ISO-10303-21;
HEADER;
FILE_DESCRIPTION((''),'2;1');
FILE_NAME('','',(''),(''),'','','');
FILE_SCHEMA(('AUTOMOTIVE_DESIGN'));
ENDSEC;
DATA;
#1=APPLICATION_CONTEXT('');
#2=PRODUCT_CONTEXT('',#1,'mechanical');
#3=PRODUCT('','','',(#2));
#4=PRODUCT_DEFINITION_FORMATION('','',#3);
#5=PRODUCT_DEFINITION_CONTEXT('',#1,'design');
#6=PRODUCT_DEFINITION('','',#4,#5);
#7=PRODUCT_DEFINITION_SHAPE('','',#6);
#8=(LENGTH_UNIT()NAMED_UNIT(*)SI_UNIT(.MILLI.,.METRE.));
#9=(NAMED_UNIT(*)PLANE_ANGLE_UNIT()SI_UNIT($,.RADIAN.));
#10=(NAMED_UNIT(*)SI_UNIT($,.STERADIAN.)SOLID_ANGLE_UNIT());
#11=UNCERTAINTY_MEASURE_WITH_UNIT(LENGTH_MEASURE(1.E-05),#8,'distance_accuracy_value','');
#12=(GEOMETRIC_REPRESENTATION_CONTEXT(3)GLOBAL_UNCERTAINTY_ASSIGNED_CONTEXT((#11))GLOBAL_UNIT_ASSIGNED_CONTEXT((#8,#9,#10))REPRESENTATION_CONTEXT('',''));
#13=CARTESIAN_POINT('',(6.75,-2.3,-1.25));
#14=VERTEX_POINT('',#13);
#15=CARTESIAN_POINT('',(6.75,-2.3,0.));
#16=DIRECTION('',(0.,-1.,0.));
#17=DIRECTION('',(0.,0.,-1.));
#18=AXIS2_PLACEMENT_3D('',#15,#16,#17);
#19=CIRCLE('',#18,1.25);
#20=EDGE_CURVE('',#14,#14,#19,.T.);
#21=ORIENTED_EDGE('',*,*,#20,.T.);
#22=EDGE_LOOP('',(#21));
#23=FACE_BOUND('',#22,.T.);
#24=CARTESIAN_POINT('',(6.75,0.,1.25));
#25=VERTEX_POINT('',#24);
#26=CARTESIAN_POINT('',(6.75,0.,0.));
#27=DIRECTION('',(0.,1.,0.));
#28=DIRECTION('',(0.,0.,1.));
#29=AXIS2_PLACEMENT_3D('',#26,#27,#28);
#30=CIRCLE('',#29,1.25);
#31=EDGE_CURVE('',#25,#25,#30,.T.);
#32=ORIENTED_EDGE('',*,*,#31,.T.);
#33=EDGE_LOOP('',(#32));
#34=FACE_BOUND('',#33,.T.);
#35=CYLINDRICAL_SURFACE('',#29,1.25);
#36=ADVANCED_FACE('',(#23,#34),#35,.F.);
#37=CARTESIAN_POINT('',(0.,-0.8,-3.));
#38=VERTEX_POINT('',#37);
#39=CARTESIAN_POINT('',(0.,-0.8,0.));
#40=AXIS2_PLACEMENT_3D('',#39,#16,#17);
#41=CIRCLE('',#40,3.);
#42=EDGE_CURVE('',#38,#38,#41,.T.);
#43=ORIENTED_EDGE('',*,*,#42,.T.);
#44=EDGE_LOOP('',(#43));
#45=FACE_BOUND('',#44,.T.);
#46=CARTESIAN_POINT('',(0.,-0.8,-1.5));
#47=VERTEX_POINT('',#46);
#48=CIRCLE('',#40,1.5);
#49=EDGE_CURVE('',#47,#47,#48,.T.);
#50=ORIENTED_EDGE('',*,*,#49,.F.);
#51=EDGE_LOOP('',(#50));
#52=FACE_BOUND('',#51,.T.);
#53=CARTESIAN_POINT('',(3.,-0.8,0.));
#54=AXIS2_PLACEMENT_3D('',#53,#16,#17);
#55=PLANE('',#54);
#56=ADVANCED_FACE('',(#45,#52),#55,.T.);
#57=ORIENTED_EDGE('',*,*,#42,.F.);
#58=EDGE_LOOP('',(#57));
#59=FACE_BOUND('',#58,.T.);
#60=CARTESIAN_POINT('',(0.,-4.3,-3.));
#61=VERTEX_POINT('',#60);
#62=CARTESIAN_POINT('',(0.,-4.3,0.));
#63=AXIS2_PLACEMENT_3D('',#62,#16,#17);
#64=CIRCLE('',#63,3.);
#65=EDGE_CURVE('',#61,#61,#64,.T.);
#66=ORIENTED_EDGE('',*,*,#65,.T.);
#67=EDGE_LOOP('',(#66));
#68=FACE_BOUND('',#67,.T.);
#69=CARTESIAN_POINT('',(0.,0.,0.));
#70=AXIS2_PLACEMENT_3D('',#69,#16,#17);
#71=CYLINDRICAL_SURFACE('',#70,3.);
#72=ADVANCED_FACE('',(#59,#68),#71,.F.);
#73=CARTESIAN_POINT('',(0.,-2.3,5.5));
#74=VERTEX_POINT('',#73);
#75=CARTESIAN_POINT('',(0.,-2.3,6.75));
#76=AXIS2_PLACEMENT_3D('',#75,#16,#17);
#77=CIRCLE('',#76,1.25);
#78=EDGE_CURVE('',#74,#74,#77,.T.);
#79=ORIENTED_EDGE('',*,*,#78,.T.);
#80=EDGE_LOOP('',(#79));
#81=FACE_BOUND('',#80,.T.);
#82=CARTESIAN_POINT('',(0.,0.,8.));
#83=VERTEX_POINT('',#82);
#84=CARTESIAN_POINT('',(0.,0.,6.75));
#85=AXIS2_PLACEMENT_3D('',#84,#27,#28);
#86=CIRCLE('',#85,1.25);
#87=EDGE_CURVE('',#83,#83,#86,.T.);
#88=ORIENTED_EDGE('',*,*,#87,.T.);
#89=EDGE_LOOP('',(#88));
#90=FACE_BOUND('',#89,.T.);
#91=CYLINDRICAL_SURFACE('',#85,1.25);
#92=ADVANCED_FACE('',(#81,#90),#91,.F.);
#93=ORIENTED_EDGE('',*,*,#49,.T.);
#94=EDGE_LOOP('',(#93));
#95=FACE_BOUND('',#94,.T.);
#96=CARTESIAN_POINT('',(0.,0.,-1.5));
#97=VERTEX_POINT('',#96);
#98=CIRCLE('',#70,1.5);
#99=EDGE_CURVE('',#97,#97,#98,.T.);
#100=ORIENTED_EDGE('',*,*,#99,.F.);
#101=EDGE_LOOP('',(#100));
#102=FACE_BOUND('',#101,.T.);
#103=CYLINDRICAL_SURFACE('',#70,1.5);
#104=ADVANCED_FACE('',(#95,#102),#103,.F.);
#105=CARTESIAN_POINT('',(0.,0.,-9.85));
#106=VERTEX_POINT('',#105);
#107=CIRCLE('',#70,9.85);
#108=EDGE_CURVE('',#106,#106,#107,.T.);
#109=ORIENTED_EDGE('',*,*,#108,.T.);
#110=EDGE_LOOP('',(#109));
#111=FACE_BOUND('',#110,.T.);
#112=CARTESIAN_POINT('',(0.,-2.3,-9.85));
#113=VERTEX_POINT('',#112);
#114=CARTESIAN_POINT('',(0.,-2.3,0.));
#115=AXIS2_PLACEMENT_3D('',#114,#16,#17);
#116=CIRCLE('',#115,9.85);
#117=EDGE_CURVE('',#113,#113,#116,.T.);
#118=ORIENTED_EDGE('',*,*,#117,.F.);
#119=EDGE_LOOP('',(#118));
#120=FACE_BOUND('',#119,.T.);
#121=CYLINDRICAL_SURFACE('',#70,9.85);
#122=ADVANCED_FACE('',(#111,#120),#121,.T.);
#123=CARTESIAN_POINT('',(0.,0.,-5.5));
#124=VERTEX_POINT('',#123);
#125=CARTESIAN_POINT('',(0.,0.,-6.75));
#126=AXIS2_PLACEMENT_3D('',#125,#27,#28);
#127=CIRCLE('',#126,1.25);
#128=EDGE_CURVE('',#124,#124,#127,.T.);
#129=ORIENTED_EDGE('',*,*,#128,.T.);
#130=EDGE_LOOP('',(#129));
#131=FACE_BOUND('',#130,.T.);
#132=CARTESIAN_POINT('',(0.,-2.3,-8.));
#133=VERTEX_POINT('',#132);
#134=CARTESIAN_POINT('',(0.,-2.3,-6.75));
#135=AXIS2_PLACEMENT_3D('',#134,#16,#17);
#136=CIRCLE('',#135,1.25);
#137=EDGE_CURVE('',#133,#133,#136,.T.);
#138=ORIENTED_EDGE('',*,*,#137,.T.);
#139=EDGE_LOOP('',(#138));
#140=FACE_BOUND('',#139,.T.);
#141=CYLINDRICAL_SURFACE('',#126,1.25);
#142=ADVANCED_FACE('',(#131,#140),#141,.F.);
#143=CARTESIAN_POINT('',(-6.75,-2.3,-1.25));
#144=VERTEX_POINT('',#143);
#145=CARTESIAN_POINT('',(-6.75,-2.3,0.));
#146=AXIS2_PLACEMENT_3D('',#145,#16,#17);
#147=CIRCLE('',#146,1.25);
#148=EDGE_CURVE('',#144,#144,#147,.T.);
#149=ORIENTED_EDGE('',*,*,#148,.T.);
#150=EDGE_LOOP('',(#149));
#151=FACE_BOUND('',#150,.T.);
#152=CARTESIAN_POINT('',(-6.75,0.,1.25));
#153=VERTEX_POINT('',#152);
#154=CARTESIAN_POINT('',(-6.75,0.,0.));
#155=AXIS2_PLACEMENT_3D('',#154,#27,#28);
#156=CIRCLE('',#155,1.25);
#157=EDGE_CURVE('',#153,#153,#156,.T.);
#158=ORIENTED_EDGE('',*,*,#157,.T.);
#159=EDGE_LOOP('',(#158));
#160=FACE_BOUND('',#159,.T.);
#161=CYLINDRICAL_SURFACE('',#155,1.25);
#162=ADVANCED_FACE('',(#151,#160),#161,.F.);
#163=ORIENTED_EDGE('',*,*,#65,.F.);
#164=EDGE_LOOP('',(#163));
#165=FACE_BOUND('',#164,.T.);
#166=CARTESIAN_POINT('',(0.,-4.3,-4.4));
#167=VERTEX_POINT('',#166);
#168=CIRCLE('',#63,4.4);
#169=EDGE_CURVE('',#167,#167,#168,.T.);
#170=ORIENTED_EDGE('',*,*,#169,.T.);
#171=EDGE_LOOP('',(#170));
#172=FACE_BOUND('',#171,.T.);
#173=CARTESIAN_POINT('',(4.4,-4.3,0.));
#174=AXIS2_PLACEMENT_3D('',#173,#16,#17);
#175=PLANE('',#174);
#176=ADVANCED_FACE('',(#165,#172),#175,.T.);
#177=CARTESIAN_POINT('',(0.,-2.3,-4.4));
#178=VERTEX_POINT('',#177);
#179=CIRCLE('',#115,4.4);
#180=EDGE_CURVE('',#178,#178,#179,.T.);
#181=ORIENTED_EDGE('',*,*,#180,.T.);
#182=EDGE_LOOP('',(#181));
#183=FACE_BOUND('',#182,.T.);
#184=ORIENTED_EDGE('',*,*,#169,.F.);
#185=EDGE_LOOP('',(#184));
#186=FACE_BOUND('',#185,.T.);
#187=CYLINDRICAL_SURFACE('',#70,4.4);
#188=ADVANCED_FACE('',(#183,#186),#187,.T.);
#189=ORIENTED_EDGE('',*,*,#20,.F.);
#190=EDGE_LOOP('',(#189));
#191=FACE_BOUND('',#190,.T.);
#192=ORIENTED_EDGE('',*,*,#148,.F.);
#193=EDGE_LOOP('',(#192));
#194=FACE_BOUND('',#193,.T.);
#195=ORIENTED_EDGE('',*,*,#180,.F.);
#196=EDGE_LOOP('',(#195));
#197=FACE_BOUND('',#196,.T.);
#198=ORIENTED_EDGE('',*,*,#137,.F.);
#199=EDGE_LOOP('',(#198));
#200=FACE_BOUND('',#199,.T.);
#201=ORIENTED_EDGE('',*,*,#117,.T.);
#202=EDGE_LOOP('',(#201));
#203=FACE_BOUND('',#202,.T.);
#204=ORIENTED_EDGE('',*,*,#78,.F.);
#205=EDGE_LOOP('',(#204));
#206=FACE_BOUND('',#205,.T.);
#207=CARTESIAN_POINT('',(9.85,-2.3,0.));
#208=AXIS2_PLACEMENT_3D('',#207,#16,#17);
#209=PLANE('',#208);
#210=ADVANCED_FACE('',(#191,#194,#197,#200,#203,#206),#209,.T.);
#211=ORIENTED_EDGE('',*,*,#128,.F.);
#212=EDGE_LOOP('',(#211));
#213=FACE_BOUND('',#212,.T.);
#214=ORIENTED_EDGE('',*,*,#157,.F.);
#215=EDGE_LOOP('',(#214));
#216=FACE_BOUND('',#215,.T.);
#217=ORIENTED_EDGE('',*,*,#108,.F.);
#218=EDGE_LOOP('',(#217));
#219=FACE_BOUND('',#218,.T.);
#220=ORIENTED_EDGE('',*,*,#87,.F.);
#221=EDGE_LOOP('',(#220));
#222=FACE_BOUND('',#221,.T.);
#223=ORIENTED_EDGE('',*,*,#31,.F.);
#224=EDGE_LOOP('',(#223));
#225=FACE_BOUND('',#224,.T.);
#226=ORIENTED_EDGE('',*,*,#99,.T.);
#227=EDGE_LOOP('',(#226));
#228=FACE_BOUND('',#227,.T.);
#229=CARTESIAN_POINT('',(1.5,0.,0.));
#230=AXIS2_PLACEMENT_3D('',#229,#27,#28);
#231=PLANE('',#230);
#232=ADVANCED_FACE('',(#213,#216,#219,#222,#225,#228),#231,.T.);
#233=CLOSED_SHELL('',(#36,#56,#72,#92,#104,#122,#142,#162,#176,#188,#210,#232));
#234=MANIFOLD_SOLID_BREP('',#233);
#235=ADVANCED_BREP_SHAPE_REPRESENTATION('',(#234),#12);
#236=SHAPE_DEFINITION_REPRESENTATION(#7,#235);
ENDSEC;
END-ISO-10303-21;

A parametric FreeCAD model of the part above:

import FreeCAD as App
import Part
import Sketcher

doc = App.newDocument("Part")
body = doc.addObject("PartDesign::Body", "Body")

sketch1 = body.newObject("Sketcher::SketchObject", "Sketch")
sketch1.AttachmentSupport = (doc.getObject("XY_Plane"), [""])
sketch1.MapMode = "FlatFace"
sketch1.addGeometry([
    Part.LineSegment(App.Vector(9.8, 0, 0), App.Vector(1.5, 0, 0)),
    Part.LineSegment(App.Vector(1.5, 0, 0), App.Vector(1.5, -0.8, 0)),
    Part.LineSegment(App.Vector(1.5, -0.8, 0), App.Vector(3, -0.8, 0)),
    Part.LineSegment(App.Vector(3, -0.8, 0), App.Vector(3, -4.3, 0)),
    Part.LineSegment(App.Vector(3, -4.3, 0), App.Vector(4.4, -4.3, 0)),
    Part.LineSegment(App.Vector(4.4, -4.3, 0), App.Vector(4.4, -2.3, 0)),
    Part.LineSegment(App.Vector(4.4, -2.3, 0), App.Vector(9.8, -2.3, 0)),
    Part.LineSegment(App.Vector(9.8, -2.3, 0), App.Vector(9.8, 0, 0)),
], False)
sketch1.addConstraint([
    Sketcher.Constraint("Coincident", 0, 2, 1, 1),
    Sketcher.Constraint("Coincident", 1, 2, 2, 1),
    Sketcher.Constraint("Coincident", 2, 2, 3, 1),
    Sketcher.Constraint("Coincident", 3, 2, 4, 1),
    Sketcher.Constraint("Coincident", 4, 2, 5, 1),
    Sketcher.Constraint("Coincident", 5, 2, 6, 1),
    Sketcher.Constraint("Coincident", 6, 2, 7, 1),
    Sketcher.Constraint("Coincident", 7, 2, 0, 1),
    Sketcher.Constraint("Horizontal", 0),
    Sketcher.Constraint("Vertical", 1),
    Sketcher.Constraint("Horizontal", 2),
    Sketcher.Constraint("Vertical", 3),
    Sketcher.Constraint("Horizontal", 4),
    Sketcher.Constraint("Vertical", 5),
    Sketcher.Constraint("Horizontal", 6),
    Sketcher.Constraint("Vertical", 7),
    Sketcher.Constraint("PointOnObject", 0, 2, -1),
    Sketcher.Constraint("DistanceY", 5, 1, 5, 2, 2.0),
    Sketcher.Constraint("DistanceX", 2, 1, 2, 2, 1.5),
    Sketcher.Constraint("DistanceX", 4, 1, 4, 2, 1.4),
    Sketcher.Constraint("DistanceY", 1, 2, 1, 1, 0.8),
    Sketcher.Constraint("DistanceY", 3, 2, 3, 1, 3.5),
    Sketcher.Constraint("DistanceX", -1, 1, 2, 2, 3.0),
    Sketcher.Constraint("DistanceX", 0, 2, 0, 1, 8.35),
])
revolution = body.newObject("PartDesign::Revolution", "Revolution")
revolution.Profile = sketch1
revolution.ReferenceAxis = (sketch1, ["V_Axis"])
revolution.Angle = 360

sketch2 = body.newObject("Sketcher::SketchObject", "Sketch001")
sketch2.AttachmentSupport = (doc.getObject("XZ_Plane"), [""])
sketch2.MapMode = "FlatFace"
sketch2.addGeometry([
    Part.Circle(App.Vector(0, -6.8, 0), App.Vector(0, 0, 1), 1.2),
    Part.Circle(App.Vector(6.8, 0, 0), App.Vector(0, 0, 1), 1.2),
    Part.Circle(App.Vector(0, 6.8, 0), App.Vector(0, 0, 1), 1.2),
    Part.Circle(App.Vector(-6.8, 0, 0), App.Vector(0, 0, 1), 1.2),
], False)
sketch2.addConstraint([
    Sketcher.Constraint("Equal", 0, 1),
    Sketcher.Constraint("Equal", 1, 2),
    Sketcher.Constraint("Equal", 2, 3),
    Sketcher.Constraint("Symmetric", 0, 3, 2, 3, -1, 1),
    Sketcher.Constraint("Symmetric", 1, 3, 3, 3, -1, 1),
    Sketcher.Constraint("PointOnObject", 0, 3, -2),
    Sketcher.Constraint("PointOnObject", 1, 3, -1),
    Sketcher.Constraint("Diameter", 0, 2.5),
    Sketcher.Constraint("DistanceY", 0, 3, 2, 3, 13.5),
    Sketcher.Constraint("DistanceX", 3, 3, 1, 3, 13.5),
])
doc.recompute()
hole = body.newObject("PartDesign::Hole", "Hole")
hole.Profile = sketch2
hole.ThreadType = "None"
hole.Diameter = 2.5
hole.DepthType = "ThroughAll"
hole.Reversed = True

doc.recompute()
